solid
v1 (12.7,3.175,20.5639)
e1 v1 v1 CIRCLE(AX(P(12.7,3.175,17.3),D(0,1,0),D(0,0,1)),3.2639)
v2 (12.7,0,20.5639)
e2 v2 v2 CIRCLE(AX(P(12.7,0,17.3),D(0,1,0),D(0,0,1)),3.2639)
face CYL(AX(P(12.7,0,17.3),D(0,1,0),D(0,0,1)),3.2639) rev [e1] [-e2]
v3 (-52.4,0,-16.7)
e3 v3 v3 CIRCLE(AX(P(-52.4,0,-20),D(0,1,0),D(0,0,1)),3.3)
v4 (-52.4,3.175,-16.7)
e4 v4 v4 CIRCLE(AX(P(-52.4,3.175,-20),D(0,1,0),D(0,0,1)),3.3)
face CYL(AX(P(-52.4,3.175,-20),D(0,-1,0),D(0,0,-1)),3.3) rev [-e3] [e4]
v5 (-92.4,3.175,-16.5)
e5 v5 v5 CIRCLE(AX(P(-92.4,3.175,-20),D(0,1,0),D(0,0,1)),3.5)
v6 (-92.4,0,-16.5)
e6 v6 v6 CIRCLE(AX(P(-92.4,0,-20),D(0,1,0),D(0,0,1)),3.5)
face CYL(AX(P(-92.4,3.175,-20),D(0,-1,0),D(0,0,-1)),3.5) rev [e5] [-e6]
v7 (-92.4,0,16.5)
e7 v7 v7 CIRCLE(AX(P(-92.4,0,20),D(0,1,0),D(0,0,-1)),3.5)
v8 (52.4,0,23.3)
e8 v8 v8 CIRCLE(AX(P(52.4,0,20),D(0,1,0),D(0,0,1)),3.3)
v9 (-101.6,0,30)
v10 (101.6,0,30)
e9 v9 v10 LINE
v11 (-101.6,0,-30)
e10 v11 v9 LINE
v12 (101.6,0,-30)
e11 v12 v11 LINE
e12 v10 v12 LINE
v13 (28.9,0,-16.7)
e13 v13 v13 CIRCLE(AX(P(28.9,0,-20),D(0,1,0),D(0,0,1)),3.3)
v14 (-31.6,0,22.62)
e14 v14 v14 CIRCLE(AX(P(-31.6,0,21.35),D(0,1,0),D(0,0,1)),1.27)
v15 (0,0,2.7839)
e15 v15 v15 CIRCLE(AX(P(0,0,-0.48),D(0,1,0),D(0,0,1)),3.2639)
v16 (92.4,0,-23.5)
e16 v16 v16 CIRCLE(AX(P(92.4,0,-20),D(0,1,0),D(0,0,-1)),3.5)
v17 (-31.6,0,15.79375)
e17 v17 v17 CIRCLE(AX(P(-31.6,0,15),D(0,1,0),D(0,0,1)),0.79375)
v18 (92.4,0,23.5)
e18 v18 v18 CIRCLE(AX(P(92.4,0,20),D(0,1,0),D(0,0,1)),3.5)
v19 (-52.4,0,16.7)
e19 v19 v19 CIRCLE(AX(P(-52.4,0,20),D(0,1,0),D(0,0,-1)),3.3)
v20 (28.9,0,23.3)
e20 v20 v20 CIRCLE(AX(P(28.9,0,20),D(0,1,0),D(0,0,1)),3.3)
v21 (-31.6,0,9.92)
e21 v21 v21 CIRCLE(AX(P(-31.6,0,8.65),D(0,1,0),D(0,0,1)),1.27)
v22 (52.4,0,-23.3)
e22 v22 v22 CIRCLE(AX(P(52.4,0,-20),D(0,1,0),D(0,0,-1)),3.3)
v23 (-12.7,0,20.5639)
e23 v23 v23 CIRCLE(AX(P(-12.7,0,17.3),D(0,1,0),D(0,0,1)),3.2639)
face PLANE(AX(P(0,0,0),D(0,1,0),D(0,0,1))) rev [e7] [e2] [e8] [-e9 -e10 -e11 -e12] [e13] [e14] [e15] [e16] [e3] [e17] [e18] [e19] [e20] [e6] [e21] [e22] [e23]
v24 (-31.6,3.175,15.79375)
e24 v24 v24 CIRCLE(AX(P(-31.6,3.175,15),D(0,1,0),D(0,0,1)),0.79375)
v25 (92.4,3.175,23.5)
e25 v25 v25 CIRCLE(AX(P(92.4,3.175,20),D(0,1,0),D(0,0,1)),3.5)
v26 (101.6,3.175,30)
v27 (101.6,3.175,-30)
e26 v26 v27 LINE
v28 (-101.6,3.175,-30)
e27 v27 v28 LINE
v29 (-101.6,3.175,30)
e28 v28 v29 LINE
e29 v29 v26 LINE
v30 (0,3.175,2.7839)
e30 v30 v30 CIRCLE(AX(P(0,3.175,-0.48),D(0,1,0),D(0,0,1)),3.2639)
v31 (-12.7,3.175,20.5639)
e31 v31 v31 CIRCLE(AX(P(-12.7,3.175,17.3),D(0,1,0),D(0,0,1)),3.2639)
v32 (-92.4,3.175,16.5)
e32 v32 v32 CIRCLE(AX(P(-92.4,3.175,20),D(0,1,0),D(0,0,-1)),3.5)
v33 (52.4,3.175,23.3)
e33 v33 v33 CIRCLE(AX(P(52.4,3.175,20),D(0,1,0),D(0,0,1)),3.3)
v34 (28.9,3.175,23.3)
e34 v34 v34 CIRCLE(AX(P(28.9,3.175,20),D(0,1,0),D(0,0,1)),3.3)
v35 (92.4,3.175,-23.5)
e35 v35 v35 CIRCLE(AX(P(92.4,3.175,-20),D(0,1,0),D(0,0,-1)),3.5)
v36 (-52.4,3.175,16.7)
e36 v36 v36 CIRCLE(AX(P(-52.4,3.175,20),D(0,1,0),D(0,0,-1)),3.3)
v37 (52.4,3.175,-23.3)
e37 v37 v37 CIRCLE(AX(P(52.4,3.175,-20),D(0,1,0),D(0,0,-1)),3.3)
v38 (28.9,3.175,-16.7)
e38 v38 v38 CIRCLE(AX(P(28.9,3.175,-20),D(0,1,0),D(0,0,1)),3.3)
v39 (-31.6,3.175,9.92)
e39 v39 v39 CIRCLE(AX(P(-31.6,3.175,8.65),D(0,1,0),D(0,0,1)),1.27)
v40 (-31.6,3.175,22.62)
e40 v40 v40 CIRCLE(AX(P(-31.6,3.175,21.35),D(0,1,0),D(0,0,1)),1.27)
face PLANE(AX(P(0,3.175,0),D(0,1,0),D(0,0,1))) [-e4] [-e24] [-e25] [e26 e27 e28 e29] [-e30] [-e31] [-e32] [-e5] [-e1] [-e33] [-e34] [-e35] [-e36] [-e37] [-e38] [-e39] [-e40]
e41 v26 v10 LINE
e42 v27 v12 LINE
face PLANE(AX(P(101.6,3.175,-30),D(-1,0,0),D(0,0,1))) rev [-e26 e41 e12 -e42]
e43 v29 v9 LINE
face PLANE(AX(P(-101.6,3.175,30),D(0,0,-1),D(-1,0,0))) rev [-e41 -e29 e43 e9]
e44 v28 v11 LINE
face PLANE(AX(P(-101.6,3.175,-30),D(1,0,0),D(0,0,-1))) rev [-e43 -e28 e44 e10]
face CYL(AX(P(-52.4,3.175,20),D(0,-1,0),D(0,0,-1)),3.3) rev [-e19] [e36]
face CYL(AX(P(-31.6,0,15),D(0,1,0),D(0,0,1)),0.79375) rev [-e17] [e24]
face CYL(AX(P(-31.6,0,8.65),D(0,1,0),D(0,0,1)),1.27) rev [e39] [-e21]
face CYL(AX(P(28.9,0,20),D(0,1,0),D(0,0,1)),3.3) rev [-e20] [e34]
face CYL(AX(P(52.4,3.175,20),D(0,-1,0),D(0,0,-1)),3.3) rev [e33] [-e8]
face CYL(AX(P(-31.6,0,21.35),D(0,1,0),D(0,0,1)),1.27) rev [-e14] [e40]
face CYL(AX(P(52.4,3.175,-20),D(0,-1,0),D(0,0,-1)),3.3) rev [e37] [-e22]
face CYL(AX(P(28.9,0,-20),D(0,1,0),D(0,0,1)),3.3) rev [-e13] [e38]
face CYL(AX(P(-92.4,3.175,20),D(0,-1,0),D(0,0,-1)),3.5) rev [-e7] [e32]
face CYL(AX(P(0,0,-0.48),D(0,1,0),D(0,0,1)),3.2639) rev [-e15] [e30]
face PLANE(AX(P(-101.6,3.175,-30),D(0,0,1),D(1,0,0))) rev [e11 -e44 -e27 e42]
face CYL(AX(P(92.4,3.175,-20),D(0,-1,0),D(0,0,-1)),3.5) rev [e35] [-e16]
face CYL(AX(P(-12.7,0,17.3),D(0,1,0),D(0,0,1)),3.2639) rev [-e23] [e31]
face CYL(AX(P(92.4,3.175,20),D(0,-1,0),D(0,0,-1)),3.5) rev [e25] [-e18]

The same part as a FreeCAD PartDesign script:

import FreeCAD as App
import Part
import Sketcher

V = App.Vector
Q = App.Units.Quantity


def add_polygon(sketch, points):
    """Adds a closed chain of lines whose ends are joined by coincident constraints."""
    first, n = sketch.GeometryCount, len(points)
    for a, b in zip(points, points[1:] + points[:1]):
        sketch.addGeometry(Part.LineSegment(App.Vector(*a, 0), App.Vector(*b, 0)), False)
    for i in range(n):
        sketch.addConstraint(Sketcher.Constraint("Coincident", first + i, 2, first + (i + 1) % n, 1))

doc = App.newDocument("Part")
body = doc.addObject("PartDesign::Body", "Body")

# Sketch on XZ plane
sketch1 = doc.addObject("Sketcher::SketchObject", "Sketch")
body.addObject(sketch1)
sketch1.AttachmentSupport = (doc.XZ_Plane, [""])
sketch1.MapMode = "FlatFace"
add_polygon(sketch1, [(-101.6, -30), (-101.6, 30), (101.6, 30), (101.6, -30)])  # lines 0-3
sketch1.addGeometry(Part.Circle(V(-92.4, 20, 0), V(0, 0, 1), 3.5), False)  # 4
sketch1.addGeometry(Part.Circle(V(-52.4, 20, 0), V(0, 0, 1), 3.3), False)  # 5
sketch1.addGeometry(Part.Circle(V(52.4, 20, 0), V(0, 0, 1), 3.3), False)  # 6
sketch1.addGeometry(Part.Circle(V(92.4, 20, 0), V(0, 0, 1), 3.5), False)  # 7
sketch1.addGeometry(Part.Circle(V(-92.4, -20, 0), V(0, 0, 1), 3.5), False)  # 8
sketch1.addGeometry(Part.Circle(V(-52.4, -20, 0), V(0, 0, 1), 3.3), False)  # 9
sketch1.addGeometry(Part.Circle(V(52.4, -20, 0), V(0, 0, 1), 3.3), False)  # 10
sketch1.addGeometry(Part.Circle(V(92.4, -20, 0), V(0, 0, 1), 3.5), False)  # 11
sketch1.addConstraint([
    Sketcher.Constraint("Vertical", 0),
    Sketcher.Constraint("Horizontal", 1),
    Sketcher.Constraint("Vertical", 2),
    Sketcher.Constraint("Horizontal", 3),
    Sketcher.Constraint("Equal", 5, 6),
    Sketcher.Constraint("Equal", 4, 7),
    Sketcher.Constraint("Equal", 7, 8),
    Sketcher.Constraint("Equal", 6, 9),
    Sketcher.Constraint("Equal", 9, 10),
    Sketcher.Constraint("Equal", 8, 11),
    Sketcher.Constraint("Symmetric", 7, 3, 8, 3, -1, 1),
    Sketcher.Constraint("Symmetric", 6, 3, 9, 3, -1, 1),
    Sketcher.Constraint("Symmetric", 5, 3, 10, 3, -1, 1),
    Sketcher.Constraint("Symmetric", 4, 3, 11, 3, -1, 1),
    Sketcher.Constraint("Symmetric", 0, 2, 2, 2, -1, 1),
    Sketcher.Constraint("Symmetric", 5, 3, 6, 3, -2),
    Sketcher.Constraint("Symmetric", 4, 3, 7, 3, -2),
    Sketcher.Constraint("Horizontal", 4, 3, 5, 3),
    Sketcher.Constraint("DistanceX", 1, 1, 1, 2, Q("8 in")),
    Sketcher.Constraint("Diameter", 4, Q("7 mm")),
    Sketcher.Constraint("Diameter", 5, Q("6.6 mm")),
    Sketcher.Constraint("DistanceY", 0, 1, 0, 2, Q("60 mm")),
    Sketcher.Constraint("DistanceX", 4, 3, -1, 1, Q("92.4 mm")),
    Sketcher.Constraint("DistanceY", -1, 1, 4, 3, Q("20 mm")),
    Sketcher.Constraint("DistanceX", 5, 3, -1, 1, Q("52.4 mm")),
])
pad1 = doc.addObject("PartDesign::Pad", "Pad")
body.addObject(pad1)
pad1.Profile = sketch1
pad1.Length = Q("0.125 in")
pad1.Reversed = True

# Sketch on XZ plane
sketch2 = doc.addObject("Sketcher::SketchObject", "Sketch001")
body.addObject(sketch2)
sketch2.AttachmentSupport = (doc.XZ_Plane, [""])
sketch2.MapMode = "FlatFace"
sketch2.AttachmentOffset = App.Placement(V(0, 0, -0.125 * 25.4), App.Rotation())
sketch2.addGeometry([
    Part.Circle(V(-12.7, 17.3, 0), V(0, 0, 1), 3.2639),
    Part.Circle(V(12.7, 17.3, 0), V(0, 0, 1), 3.2639),
    Part.Circle(V(0, -0.48, 0), V(0, 0, 1), 3.2639),
], False)
sketch2.addConstraint([
    Sketcher.Constraint("Equal", 0, 1),
    Sketcher.Constraint("Equal", 1, 2),
    Sketcher.Constraint("Symmetric", 0, 3, 1, 3, -2),
    Sketcher.Constraint("PointOnObject", 2, 3, -2),
    Sketcher.Constraint("Diameter", 0, Q("0.257 in")),
    Sketcher.Constraint("DistanceX", 0, 3, 1, 3, Q("1 in")),
    Sketcher.Constraint("DistanceY", 2, 3, 0, 3, Q("0.7 in")),
    Sketcher.Constraint("DistanceY", -1, 1, 0, 3, Q("17.3 mm")),
])
pocket1 = doc.addObject("PartDesign::Pocket", "Pocket")
body.addObject(pocket1)
pocket1.Profile = sketch2
pocket1.Type = "ThroughAll"
pocket1.Reversed = True

# Sketch on XZ plane
sketch3 = doc.addObject("Sketcher::SketchObject", "Sketch002")
body.addObject(sketch3)
sketch3.AttachmentSupport = (doc.XZ_Plane, [""])
sketch3.MapMode = "FlatFace"
sketch3.AttachmentOffset = App.Placement(V(0, 0, -0.125 * 25.4), App.Rotation())
sketch3.addGeometry([
    Part.Circle(V(-31.6, 15, 0), V(0, 0, 1), 0.79375),
    Part.Circle(V(-31.6, 8.65, 0), V(0, 0, 1), 1.27),
    Part.Circle(V(-31.6, 21.35, 0), V(0, 0, 1), 1.27),
], False)
sketch3.addConstraint([
    Sketcher.Constraint("Equal", 1, 2),
    Sketcher.Constraint("Vertical", 0, 3, 1, 3),
    Sketcher.Constraint("Vertical", 1, 3, 2, 3),
    Sketcher.Constraint("Diameter", 1, Q("0.1 in")),
    Sketcher.Constraint("Diameter", 0, Q("0.0625 in")),
    Sketcher.Constraint("DistanceY", 1, 3, 2, 3, Q("0.5 in")),
    Sketcher.Constraint("DistanceY", 1, 3, 0, 3, Q("0.25 in")),
    Sketcher.Constraint("DistanceX", 0, 3, -1, 1, Q("31.6 mm")),
    Sketcher.Constraint("DistanceY", -1, 1, 0, 3, Q("15 mm")),
])
pocket2 = doc.addObject("PartDesign::Pocket", "Pocket001")
body.addObject(pocket2)
pocket2.Profile = sketch3
pocket2.Type = "ThroughAll"
pocket2.Reversed = True

# Sketch on XZ plane
sketch4 = doc.addObject("Sketcher::SketchObject", "Sketch003")
body.addObject(sketch4)
sketch4.AttachmentSupport = (doc.XZ_Plane, [""])
sketch4.MapMode = "FlatFace"
sketch4.AttachmentOffset = App.Placement(V(0, 0, -0.125 * 25.4), App.Rotation())
sketch4.addGeometry([
    Part.Circle(V(28.9, 20, 0), V(0, 0, 1), 3.3),
    Part.Circle(V(28.9, -20, 0), V(0, 0, 1), 3.3),
], False)
sketch4.addConstraint([
    Sketcher.Constraint("Equal", 0, 1),
    Sketcher.Constraint("Symmetric", 0, 3, 1, 3, -1),
    Sketcher.Constraint("Diameter", 0, Q("6.6 mm")),
    Sketcher.Constraint("DistanceX", -1, 1, 0, 3, Q("28.9 mm")),
    Sketcher.Constraint("DistanceY", -1, 1, 0, 3, Q("20 mm")),
])
pocket3 = doc.addObject("PartDesign::Pocket", "Pocket002")
body.addObject(pocket3)
pocket3.Profile = sketch4
pocket3.Type = "ThroughAll"
pocket3.Reversed = True

doc.recompute()
